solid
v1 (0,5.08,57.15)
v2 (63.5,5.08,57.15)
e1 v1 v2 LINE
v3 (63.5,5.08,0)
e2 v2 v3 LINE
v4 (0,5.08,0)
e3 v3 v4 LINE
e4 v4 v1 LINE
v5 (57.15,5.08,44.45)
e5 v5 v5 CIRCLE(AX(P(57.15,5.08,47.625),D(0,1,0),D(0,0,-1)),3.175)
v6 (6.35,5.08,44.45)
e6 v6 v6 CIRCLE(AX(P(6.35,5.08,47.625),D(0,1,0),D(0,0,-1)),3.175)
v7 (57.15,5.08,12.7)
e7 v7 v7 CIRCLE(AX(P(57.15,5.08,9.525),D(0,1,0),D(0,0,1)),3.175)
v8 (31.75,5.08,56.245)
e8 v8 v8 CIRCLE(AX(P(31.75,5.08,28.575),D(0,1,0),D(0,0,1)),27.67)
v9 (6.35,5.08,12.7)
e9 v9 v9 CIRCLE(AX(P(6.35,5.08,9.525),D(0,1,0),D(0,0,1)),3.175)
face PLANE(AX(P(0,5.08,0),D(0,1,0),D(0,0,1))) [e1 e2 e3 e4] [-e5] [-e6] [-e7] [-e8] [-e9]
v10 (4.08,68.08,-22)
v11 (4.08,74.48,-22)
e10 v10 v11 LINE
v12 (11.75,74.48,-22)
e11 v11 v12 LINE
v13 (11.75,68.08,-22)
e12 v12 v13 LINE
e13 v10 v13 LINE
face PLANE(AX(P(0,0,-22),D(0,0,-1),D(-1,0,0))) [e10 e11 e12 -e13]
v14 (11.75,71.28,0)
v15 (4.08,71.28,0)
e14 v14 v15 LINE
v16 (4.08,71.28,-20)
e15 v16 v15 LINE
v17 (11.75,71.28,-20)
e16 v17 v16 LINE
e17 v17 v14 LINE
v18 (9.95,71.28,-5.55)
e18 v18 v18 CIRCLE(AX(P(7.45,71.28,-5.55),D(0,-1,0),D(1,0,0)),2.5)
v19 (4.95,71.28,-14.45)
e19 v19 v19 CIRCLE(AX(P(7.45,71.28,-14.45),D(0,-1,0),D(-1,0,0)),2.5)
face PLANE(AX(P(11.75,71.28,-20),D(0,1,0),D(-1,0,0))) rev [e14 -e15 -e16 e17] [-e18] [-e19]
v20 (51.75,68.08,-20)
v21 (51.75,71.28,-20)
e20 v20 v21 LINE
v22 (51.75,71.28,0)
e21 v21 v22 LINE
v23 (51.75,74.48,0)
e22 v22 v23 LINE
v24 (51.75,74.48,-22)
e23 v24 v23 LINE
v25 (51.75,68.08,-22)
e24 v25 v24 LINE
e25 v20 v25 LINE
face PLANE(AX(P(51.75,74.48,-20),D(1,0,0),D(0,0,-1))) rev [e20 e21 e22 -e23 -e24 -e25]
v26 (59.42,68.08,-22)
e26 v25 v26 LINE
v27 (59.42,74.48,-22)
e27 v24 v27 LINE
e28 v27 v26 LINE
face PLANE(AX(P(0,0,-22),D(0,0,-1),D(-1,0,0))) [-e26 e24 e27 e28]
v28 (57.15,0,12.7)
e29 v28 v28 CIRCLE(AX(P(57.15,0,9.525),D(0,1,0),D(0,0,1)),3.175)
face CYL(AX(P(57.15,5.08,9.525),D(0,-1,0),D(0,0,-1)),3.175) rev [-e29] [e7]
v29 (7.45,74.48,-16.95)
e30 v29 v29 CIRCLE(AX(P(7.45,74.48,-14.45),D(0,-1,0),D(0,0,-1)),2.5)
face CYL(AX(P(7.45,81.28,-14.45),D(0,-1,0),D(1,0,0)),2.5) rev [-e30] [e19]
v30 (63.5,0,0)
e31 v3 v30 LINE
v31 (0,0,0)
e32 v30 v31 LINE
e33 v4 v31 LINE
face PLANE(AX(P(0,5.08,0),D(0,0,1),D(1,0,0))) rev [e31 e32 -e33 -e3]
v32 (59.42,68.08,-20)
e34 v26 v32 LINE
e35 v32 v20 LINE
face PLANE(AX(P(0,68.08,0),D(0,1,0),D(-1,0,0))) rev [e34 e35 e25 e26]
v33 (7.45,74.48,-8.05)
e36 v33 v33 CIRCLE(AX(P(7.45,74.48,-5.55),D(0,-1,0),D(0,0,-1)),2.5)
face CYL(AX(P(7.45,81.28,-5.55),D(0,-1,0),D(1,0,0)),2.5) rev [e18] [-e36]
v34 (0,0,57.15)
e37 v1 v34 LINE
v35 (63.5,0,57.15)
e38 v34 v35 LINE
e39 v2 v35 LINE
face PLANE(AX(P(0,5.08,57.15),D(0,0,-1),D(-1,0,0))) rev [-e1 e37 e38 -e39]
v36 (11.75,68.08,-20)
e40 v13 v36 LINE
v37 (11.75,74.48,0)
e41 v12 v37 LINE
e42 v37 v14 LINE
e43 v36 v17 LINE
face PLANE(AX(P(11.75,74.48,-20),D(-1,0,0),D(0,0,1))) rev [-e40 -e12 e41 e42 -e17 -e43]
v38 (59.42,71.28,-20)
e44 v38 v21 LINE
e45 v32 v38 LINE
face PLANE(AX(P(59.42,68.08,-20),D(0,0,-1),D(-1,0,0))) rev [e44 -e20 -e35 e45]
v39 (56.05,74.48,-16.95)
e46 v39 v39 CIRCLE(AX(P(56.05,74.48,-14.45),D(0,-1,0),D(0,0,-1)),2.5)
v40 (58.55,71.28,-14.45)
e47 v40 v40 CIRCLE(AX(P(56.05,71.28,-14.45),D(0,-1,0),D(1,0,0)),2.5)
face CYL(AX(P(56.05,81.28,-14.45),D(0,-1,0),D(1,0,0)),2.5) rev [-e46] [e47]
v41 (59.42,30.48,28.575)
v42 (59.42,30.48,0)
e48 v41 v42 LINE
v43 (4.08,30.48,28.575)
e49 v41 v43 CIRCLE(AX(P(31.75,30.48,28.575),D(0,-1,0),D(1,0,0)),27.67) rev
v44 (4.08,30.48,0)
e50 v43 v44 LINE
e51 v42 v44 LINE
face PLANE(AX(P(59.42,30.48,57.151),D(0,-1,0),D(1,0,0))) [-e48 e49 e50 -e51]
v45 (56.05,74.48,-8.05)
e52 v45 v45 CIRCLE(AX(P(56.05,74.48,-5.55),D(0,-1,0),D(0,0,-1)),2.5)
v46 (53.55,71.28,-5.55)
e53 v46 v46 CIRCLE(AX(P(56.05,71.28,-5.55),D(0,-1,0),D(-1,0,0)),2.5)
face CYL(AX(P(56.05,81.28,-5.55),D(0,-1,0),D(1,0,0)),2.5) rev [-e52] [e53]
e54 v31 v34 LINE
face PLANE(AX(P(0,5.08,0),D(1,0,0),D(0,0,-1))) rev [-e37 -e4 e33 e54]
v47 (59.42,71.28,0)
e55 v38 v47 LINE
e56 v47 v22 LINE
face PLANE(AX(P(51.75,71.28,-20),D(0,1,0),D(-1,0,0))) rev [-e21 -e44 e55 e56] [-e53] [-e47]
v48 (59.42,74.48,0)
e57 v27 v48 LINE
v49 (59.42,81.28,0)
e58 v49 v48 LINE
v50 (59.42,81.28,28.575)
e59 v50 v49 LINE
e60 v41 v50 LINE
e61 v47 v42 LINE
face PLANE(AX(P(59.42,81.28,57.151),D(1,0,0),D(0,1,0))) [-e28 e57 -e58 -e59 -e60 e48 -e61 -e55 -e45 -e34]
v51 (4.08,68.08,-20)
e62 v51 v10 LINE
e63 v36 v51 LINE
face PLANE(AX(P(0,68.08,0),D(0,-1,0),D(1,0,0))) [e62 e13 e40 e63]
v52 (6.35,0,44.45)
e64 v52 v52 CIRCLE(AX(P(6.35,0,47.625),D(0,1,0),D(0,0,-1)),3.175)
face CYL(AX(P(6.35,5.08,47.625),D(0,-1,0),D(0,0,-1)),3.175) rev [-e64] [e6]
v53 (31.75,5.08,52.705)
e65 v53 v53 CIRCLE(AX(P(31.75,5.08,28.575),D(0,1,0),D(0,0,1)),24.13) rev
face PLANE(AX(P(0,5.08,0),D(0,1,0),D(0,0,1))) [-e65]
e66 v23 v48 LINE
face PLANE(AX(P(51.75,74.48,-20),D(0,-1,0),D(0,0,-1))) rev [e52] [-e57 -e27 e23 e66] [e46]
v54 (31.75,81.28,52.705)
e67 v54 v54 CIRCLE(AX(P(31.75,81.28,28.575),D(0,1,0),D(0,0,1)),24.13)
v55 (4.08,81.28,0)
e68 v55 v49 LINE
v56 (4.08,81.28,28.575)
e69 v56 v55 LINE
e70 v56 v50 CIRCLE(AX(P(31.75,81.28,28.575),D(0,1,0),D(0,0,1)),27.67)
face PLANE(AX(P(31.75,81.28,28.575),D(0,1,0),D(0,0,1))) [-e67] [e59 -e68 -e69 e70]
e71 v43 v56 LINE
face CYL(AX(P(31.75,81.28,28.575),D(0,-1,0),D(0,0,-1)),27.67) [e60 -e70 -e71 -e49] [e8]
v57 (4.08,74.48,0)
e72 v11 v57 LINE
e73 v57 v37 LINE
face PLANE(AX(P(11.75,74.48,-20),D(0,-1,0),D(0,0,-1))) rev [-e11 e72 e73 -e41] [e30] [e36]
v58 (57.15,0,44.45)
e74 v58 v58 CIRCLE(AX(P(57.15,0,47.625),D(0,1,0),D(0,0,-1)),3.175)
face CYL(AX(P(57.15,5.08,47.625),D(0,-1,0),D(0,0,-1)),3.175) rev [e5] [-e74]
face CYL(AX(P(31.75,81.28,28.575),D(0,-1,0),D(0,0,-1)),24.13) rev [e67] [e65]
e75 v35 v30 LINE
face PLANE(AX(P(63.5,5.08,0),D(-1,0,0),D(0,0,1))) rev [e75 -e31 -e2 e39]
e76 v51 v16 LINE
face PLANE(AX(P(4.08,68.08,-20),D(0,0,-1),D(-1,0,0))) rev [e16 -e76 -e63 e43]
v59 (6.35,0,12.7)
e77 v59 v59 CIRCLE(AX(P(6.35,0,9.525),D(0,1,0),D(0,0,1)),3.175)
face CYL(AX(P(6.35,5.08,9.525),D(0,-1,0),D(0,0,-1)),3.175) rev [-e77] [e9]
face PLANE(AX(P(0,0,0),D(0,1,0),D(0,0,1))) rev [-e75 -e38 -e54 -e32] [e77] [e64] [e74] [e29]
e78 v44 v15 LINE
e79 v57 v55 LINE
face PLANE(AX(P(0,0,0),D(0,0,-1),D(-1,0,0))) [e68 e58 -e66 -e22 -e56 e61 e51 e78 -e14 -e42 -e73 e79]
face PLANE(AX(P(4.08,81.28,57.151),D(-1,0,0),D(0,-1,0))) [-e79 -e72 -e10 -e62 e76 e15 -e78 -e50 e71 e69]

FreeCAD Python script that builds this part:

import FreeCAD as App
import Part
import Sketcher

V = App.Vector
Q = App.Units.Quantity

doc = App.newDocument("Part")
body = doc.addObject("PartDesign::Body", "Body")

sketch1 = body.newObject("Sketcher::SketchObject", "Sketch")
sketch1.AttachmentSupport = (doc.getObject("XZ_Plane"), [""])
sketch1.MapMode = "FlatFace"
sketch1.addGeometry([
    Part.LineSegment(V(0, 0, 0), V(0, 57.1, 0)),
    Part.LineSegment(V(0, 57.1, 0), V(63.5, 57.1, 0)),
    Part.LineSegment(V(63.5, 57.1, 0), V(63.5, 0, 0)),
    Part.LineSegment(V(63.5, 0, 0), V(0, 0, 0)),
    Part.Circle(V(6.3, 47.6, 0), V(0, 0, 1), 3.2),
    Part.Circle(V(57.1, 47.6, 0), V(0, 0, 1), 3.2),
    Part.Circle(V(6.3, 9.5, 0), V(0, 0, 1), 3.2),
    Part.Circle(V(57.1, 9.5, 0), V(0, 0, 1), 3.2),
], False)
sketch1.addConstraint([
    Sketcher.Constraint("Coincident", 0, 2, 1, 1),
    Sketcher.Constraint("Coincident", 1, 2, 2, 1),
    Sketcher.Constraint("Coincident", 2, 2, 3, 1),
    Sketcher.Constraint("Coincident", 3, 2, 0, 1),
    Sketcher.Constraint("Vertical", 0),
    Sketcher.Constraint("Horizontal", 1),
    Sketcher.Constraint("Vertical", 2),
    Sketcher.Constraint("Horizontal", 3),
    Sketcher.Constraint("Coincident", 3, 2, -1, 1),
    Sketcher.Constraint("Equal", 4, 5),
    Sketcher.Constraint("Equal", 5, 6),
    Sketcher.Constraint("Equal", 6, 7),
    Sketcher.Constraint("Horizontal", 4, 3, 5, 3),
    Sketcher.Constraint("Horizontal", 6, 3, 7, 3),
    Sketcher.Constraint("Vertical", 4, 3, 6, 3),
    Sketcher.Constraint("Vertical", 5, 3, 7, 3),
    Sketcher.Constraint("Diameter", 4, Q("0.25 in")),
    Sketcher.Constraint("DistanceX", 1, 1, 1, 2, Q("2.5 in")),
    Sketcher.Constraint("DistanceX", 4, 3, 5, 3, Q("2 in")),
    Sketcher.Constraint("DistanceY", 0, 1, 0, 2, Q("2.25 in")),
    Sketcher.Constraint("DistanceY", 6, 3, 4, 3, Q("1.5 in")),
    Sketcher.Constraint("DistanceX", -1, 1, 4, 3, Q("0.25 in")),
    Sketcher.Constraint("DistanceY", -1, 1, 4, 3, Q("1.875 in")),
])
pad1 = body.newObject("PartDesign::Pad", "Pad")
pad1.Profile = sketch1
pad1.Length = Q("0.2 in")
pad1.Reversed = True

sketch2 = body.newObject("Sketcher::SketchObject", "Sketch001")
sketch2.AttachmentSupport = (doc.getObject("XZ_Plane"), [""])
sketch2.MapMode = "FlatFace"
sketch2.AttachmentOffset = App.Placement(V(0, 0, -0.2 * 25.4), App.Rotation())
sketch2.addGeometry([
    Part.Circle(V(32, 29, 0), V(0, 0, 1), 28),
    Part.Circle(V(32, 29, 0), V(0, 0, 1), 24),
], False)
sketch2.addConstraint([
    Sketcher.Constraint("Coincident", 1, 3, 0, 3),
    Sketcher.Constraint("Diameter", 1, Q("1.9 in")),
    Sketcher.Constraint("Diameter", 0, 55.34),
    Sketcher.Constraint("DistanceX", -1, 1, 0, 3, Q("1.25 in")),
    Sketcher.Constraint("DistanceY", -1, 1, 0, 3, Q("1.125 in")),
])
pad2 = body.newObject("PartDesign::Pad", "Pad001")
pad2.Profile = sketch2
pad2.Length = Q("3 in")
pad2.Reversed = True

sketch3 = body.newObject("Sketcher::SketchObject", "Sketch002")
sketch3.AttachmentSupport = (doc.getObject("XY_Plane"), [""])
sketch3.MapMode = "FlatFace"
sketch3.addGeometry([
    Part.LineSegment(V(59, 81, 0), V(59, 30, 0)),
    Part.LineSegment(V(59, 30, 0), V(4, 30, 0)),
    Part.LineSegment(V(4, 30, 0), V(4, 81, 0)),
    Part.LineSegment(V(4, 81, 0), V(59, 81, 0)),
], False)
sketch3.addConstraint([
    Sketcher.Constraint("Coincident", 0, 2, 1, 1),
    Sketcher.Constraint("Coincident", 1, 2, 2, 1),
    Sketcher.Constraint("Coincident", 2, 2, 3, 1),
    Sketcher.Constraint("Coincident", 3, 2, 0, 1),
    Sketcher.Constraint("Vertical", 0),
    Sketcher.Constraint("Horizontal", 1),
    Sketcher.Constraint("Vertical", 2),
    Sketcher.Constraint("Horizontal", 3),
    Sketcher.Constraint("DistanceY", 0, 2, 0, 1, Q("2 in")),
    Sketcher.Constraint("DistanceY", -1, 1, 0, 2, Q("1.2 in")),
    Sketcher.Constraint("DistanceX", 1, 2, 1, 1, 55.34),
    Sketcher.Constraint("DistanceX", -1, 1, 0, 2, 59.42),
])
pad3 = body.newObject("PartDesign::Pad", "Pad002")
pad3.Profile = sketch3
pad3.Type = "UpToFirst"

sketch4 = body.newObject("Sketcher::SketchObject", "Sketch003")
sketch4.AttachmentSupport = (doc.getObject("XY_Plane"), [""])
sketch4.MapMode = "FlatFace"
sketch4.addGeometry([
    Part.LineSegment(V(11.8, 74.5, 0), V(11.8, 71.3, 0)),
    Part.LineSegment(V(11.8, 71.3, 0), V(4.1, 71.3, 0)),
    Part.LineSegment(V(4.1, 71.3, 0), V(4.1, 74.5, 0)),
    Part.LineSegment(V(4.1, 74.5, 0), V(11.8, 74.5, 0)),
    Part.LineSegment(V(59.4, 74.5, 0), V(59.4, 71.3, 0)),
    Part.LineSegment(V(59.4, 71.3, 0), V(51.8, 71.3, 0)),
    Part.LineSegment(V(51.8, 71.3, 0), V(51.8, 74.5, 0)),
    Part.LineSegment(V(51.8, 74.5, 0), V(59.4, 74.5, 0)),
], False)
sketch4.addConstraint([
    Sketcher.Constraint("Coincident", 0, 2, 1, 1),
    Sketcher.Constraint("Coincident", 1, 2, 2, 1),
    Sketcher.Constraint("Coincident", 2, 2, 3, 1),
    Sketcher.Constraint("Coincident", 3, 2, 0, 1),
    Sketcher.Constraint("Coincident", 4, 2, 5, 1),
    Sketcher.Constraint("Coincident", 5, 2, 6, 1),
    Sketcher.Constraint("Coincident", 6, 2, 7, 1),
    Sketcher.Constraint("Coincident", 7, 2, 4, 1),
    Sketcher.Constraint("Vertical", 0),
    Sketcher.Constraint("Horizontal", 1),
    Sketcher.Constraint("Vertical", 2),
    Sketcher.Constraint("Horizontal", 3),
    Sketcher.Constraint("Vertical", 4),
    Sketcher.Constraint("Horizontal", 5),
    Sketcher.Constraint("Vertical", 6),
    Sketcher.Constraint("Horizontal", 7),
    Sketcher.Constraint("Horizontal", 1, 2, 4, 2),
    Sketcher.Constraint("Horizontal", 3, 2, 6, 2),
    Sketcher.Constraint("Equal", 3, 5),
    Sketcher.Constraint("DistanceX", 1, 2, 1, 1, 7.67),
    Sketcher.Constraint("DistanceY", 0, 2, 0, 1, 3.2),
    Sketcher.Constraint("DistanceX", -1, 1, 0, 2, 11.75),
    Sketcher.Constraint("DistanceY", -1, 1, 0, 2, 71.28),
    Sketcher.Constraint("DistanceX", -1, 1, 4, 2, 59.42),
])
pad4 = body.newObject("PartDesign::Pad", "Pad003")
pad4.Profile = sketch4
pad4.Length = 20
pad4.Reversed = True

sketch5 = body.newObject("Sketcher::SketchObject", "Sketch004")
sketch5.AttachmentSupport = (doc.getObject("XZ_Plane"), [""])
sketch5.MapMode = "FlatFace"
sketch5.AttachmentOffset = App.Placement(V(0, 0, -71.28), App.Rotation())
sketch5.addGeometry([
    Part.Circle(V(7.5, -5.5, 0), V(0, 0, 1), 2.5),
    Part.Circle(V(56, -5.5, 0), V(0, 0, 1), 2.5),
    Part.Circle(V(56, -14.4, 0), V(0, 0, 1), 2.5),
    Part.Circle(V(7.5, -14.4, 0), V(0, 0, 1), 2.5),
], False)
sketch5.addConstraint([
    Sketcher.Constraint("Equal", 0, 1),
    Sketcher.Constraint("Equal", 1, 2),
    Sketcher.Constraint("Equal", 2, 3),
    Sketcher.Constraint("Horizontal", 0, 3, 1, 3),
    Sketcher.Constraint("Horizontal", 2, 3, 3, 3),
    Sketcher.Constraint("Vertical", 1, 3, 2, 3),
    Sketcher.Constraint("Vertical", 0, 3, 3, 3),
    Sketcher.Constraint("Diameter", 0, 5.0),
    Sketcher.Constraint("DistanceX", -1, 1, 0, 3, 7.45),
    Sketcher.Constraint("DistanceY", 0, 3, -1, 1, 5.55),
    Sketcher.Constraint("DistanceX", -1, 1, 1, 3, 56.05),
    Sketcher.Constraint("DistanceY", 2, 3, -1, 1, 14.45),
])
pocket1 = body.newObject("PartDesign::Pocket", "Pocket")
pocket1.Profile = sketch5
pocket1.Type = "ThroughAll"

sketch6 = body.newObject("Sketcher::SketchObject", "Sketch005")
sketch6.AttachmentSupport = (doc.getObject("XY_Plane"), [""])
sketch6.MapMode = "FlatFace"
sketch6.AttachmentOffset = App.Placement(V(0, 0, -20), App.Rotation())
sketch6.addGeometry([
    Part.LineSegment(V(59.4, 74.5, 0), V(59.4, 71.3, 0)),
    Part.LineSegment(V(59.4, 71.3, 0), V(51.8, 71.3, 0)),
    Part.LineSegment(V(51.8, 71.3, 0), V(51.8, 74.5, 0)),
    Part.LineSegment(V(51.8, 74.5, 0), V(59.4, 74.5, 0)),
    Part.LineSegment(V(11.8, 74.5, 0), V(11.8, 71.3, 0)),
    Part.LineSegment(V(11.8, 71.3, 0), V(4.1, 71.3, 0)),
    Part.LineSegment(V(4.1, 71.3, 0), V(4.1, 74.5, 0)),
    Part.LineSegment(V(4.1, 74.5, 0), V(11.8, 74.5, 0)),
], False)
sketch6.addConstraint([
    Sketcher.Constraint("Coincident", 0, 2, 1, 1),
    Sketcher.Constraint("Coincident", 1, 2, 2, 1),
    Sketcher.Constraint("Coincident", 2, 2, 3, 1),
    Sketcher.Constraint("Coincident", 3, 2, 0, 1),
    Sketcher.Constraint("Coincident", 4, 2, 5, 1),
    Sketcher.Constraint("Coincident", 5, 2, 6, 1),
    Sketcher.Constraint("Coincident", 6, 2, 7, 1),
    Sketcher.Constraint("Coincident", 7, 2, 4, 1),
    Sketcher.Constraint("Vertical", 0),
    Sketcher.Constraint("Horizontal", 1),
    Sketcher.Constraint("Vertical", 2),
    Sketcher.Constraint("Horizontal", 3),
    Sketcher.Constraint("Vertical", 4),
    Sketcher.Constraint("Horizontal", 5),
    Sketcher.Constraint("Vertical", 6),
    Sketcher.Constraint("Horizontal", 7),
    Sketcher.Constraint("Horizontal", 1, 2, 4, 2),
    Sketcher.Constraint("Horizontal", 3, 2, 6, 2),
    Sketcher.Constraint("Equal", 3, 5),
    Sketcher.Constraint("DistanceX", 1, 2, 1, 1, 7.67),
    Sketcher.Constraint("DistanceY", 0, 2, 0, 1, 3.2),
    Sketcher.Constraint("DistanceX", -1, 1, 0, 2, 59.42),
    Sketcher.Constraint("DistanceY", -1, 1, 0, 2, 71.28),
    Sketcher.Constraint("DistanceX", -1, 1, 4, 2, 11.75),
])
pad5 = body.newObject("PartDesign::Pad", "Pad004")
pad5.Profile = sketch6
pad5.Length = 2
pad5.Reversed = True

sketch7 = body.newObject("Sketcher::SketchObject", "Sketch006")
sketch7.AttachmentSupport = (doc.getObject("XZ_Plane"), [""])
sketch7.MapMode = "FlatFace"
sketch7.AttachmentOffset = App.Placement(V(0, 0, -71.28), App.Rotation())
sketch7.addGeometry([
    Part.LineSegment(V(4.1, -20, 0), V(4.1, -22, 0)),
    Part.LineSegment(V(4.1, -22, 0), V(11.8, -22, 0)),
    Part.LineSegment(V(11.8, -22, 0), V(11.8, -20, 0)),
    Part.LineSegment(V(11.8, -20, 0), V(4.1, -20, 0)),
    Part.LineSegment(V(51.8, -20, 0), V(51.8, -22, 0)),
    Part.LineSegment(V(51.8, -22, 0), V(59.4, -22, 0)),
    Part.LineSegment(V(59.4, -22, 0), V(59.4, -20, 0)),
    Part.LineSegment(V(59.4, -20, 0), V(51.8, -20, 0)),
], False)
sketch7.addConstraint([
    Sketcher.Constraint("Coincident", 0, 2, 1, 1),
    Sketcher.Constraint("Coincident", 1, 2, 2, 1),
    Sketcher.Constraint("Coincident", 2, 2, 3, 1),
    Sketcher.Constraint("Coincident", 3, 2, 0, 1),
    Sketcher.Constraint("Coincident", 4, 2, 5, 1),
    Sketcher.Constraint("Coincident", 5, 2, 6, 1),
    Sketcher.Constraint("Coincident", 6, 2, 7, 1),
    Sketcher.Constraint("Coincident", 7, 2, 4, 1),
    Sketcher.Constraint("Vertical", 0),
    Sketcher.Constraint("Horizontal", 1),
    Sketcher.Constraint("Vertical", 2),
    Sketcher.Constraint("Horizontal", 3),
    Sketcher.Constraint("Vertical", 4),
    Sketcher.Constraint("Horizontal", 5),
    Sketcher.Constraint("Vertical", 6),
    Sketcher.Constraint("Horizontal", 7),
    Sketcher.Constraint("Horizontal", 1, 2, 4, 2),
    Sketcher.Constraint("Horizontal", 3, 2, 6, 2),
    Sketcher.Constraint("Equal", 3, 5),
    Sketcher.Constraint("DistanceX", 1, 1, 1, 2, 7.67),
    Sketcher.Constraint("DistanceY", 0, 2, 0, 1, 2.0),
    Sketcher.Constraint("DistanceX", -1, 1, 0, 2, 4.08),
    Sketcher.Constraint("DistanceY", 0, 2, -1, 1, 22.0),
    Sketcher.Constraint("DistanceX", -1, 1, 4, 2, 51.75),
])
pad6 = body.newObject("PartDesign::Pad", "Pad005")
pad6.Profile = sketch7
pad6.Length = 3.2

doc.recompute()
